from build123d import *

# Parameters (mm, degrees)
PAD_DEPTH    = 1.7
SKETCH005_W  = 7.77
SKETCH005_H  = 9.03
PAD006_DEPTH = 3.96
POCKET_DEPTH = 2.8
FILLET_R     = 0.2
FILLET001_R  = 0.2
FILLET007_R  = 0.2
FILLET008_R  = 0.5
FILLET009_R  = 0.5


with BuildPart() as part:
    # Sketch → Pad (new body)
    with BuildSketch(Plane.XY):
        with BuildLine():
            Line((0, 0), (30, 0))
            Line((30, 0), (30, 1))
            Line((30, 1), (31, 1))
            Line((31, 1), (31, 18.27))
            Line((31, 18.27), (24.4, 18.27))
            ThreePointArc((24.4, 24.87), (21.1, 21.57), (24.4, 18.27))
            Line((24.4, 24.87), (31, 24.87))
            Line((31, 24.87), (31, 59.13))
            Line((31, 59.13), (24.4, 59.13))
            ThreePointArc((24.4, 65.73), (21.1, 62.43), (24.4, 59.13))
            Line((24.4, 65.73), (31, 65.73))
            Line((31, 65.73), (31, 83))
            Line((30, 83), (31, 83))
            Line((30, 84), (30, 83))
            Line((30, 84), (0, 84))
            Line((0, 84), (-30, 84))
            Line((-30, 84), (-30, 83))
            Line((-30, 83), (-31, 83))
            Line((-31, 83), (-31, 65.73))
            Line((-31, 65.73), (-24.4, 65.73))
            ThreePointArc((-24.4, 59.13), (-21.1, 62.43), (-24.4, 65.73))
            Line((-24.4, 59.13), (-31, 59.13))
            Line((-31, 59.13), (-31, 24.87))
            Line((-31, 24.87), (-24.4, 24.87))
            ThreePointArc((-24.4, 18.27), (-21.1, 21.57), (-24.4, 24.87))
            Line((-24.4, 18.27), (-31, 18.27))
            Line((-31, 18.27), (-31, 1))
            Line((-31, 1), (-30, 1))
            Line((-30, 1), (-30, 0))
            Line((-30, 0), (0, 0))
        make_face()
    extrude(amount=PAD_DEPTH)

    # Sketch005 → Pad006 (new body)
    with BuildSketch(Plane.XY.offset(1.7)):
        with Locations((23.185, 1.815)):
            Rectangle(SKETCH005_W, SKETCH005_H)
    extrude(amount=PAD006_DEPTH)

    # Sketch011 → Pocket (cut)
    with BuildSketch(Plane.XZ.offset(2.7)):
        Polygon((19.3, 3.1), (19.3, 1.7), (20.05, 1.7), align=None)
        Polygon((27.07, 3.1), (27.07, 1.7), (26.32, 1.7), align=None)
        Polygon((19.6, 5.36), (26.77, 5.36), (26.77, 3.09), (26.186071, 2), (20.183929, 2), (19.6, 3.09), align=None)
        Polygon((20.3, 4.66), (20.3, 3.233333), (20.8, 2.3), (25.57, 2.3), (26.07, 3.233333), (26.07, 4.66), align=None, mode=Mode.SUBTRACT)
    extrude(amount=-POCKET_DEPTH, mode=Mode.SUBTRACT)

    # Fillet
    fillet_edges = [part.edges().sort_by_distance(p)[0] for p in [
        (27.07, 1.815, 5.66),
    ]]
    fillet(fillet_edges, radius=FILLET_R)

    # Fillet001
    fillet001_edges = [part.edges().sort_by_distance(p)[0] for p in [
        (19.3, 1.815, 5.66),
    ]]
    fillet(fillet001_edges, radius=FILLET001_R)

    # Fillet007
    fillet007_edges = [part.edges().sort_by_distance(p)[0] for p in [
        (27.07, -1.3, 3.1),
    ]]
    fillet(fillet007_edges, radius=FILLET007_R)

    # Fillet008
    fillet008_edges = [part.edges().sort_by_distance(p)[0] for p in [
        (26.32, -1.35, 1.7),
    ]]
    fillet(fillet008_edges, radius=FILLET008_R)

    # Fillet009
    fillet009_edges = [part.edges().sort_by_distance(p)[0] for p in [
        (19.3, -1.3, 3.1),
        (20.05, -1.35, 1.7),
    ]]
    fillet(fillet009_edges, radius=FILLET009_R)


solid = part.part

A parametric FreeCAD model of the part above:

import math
import FreeCAD as App
import Part
import Sketcher


def edges_at(feature, points):
    """Names of the edges that pass closest to the given points."""
    edges = feature.Shape.Edges
    near = lambda p: min(range(len(edges)), key=lambda i: edges[i].distToShape(Part.Vertex(*p))[0])
    return sorted({f"Edge{near(p) + 1}" for p in points})

doc = App.newDocument("Part")
body = doc.addObject("PartDesign::Body", "Body")

# Sketch on XY plane
sketch1 = body.newObject("Sketcher::SketchObject", "Sketch")
sketch1.AttachmentSupport = (doc.getObject("XY_Plane"), [""])
sketch1.MapMode = "FlatFace"
sketch1.addGeometry(Part.LineSegment(App.Vector(30, 0, 0), App.Vector(30, 1, 0)), False)
sketch1.addGeometry(Part.LineSegment(App.Vector(30, 1, 0), App.Vector(31, 1, 0)), False)
sketch1.addGeometry(Part.LineSegment(App.Vector(31, 1, 0), App.Vector(31, 18.3, 0)), False)
sketch1.addGeometry(Part.LineSegment(App.Vector(31, 18.3, 0), App.Vector(24.4, 18.3, 0)), False)
sketch1.addGeometry(Part.ArcOfCircle(Part.Circle(App.Vector(24.4, 21.6, 0), App.Vector(0, 0, 1), 3.3), math.radians(90), math.radians(270)), False)
sketch1.addGeometry(Part.LineSegment(App.Vector(24.4, 24.9, 0), App.Vector(31, 24.9, 0)), False)
sketch1.addGeometry(Part.LineSegment(App.Vector(31, 24.9, 0), App.Vector(31, 59.1, 0)), False)
sketch1.addGeometry(Part.LineSegment(App.Vector(31, 59.1, 0), App.Vector(24.4, 59.1, 0)), False)
sketch1.addGeometry(Part.ArcOfCircle(Part.Circle(App.Vector(24.4, 62.4, 0), App.Vector(0, 0, 1), 3.3), math.radians(90), math.radians(270)), False)
sketch1.addGeometry(Part.LineSegment(App.Vector(24.4, 65.7, 0), App.Vector(31, 65.7, 0)), False)
sketch1.addGeometry(Part.LineSegment(App.Vector(31, 65.7, 0), App.Vector(31, 83, 0)), False)
sketch1.addGeometry(Part.LineSegment(App.Vector(31, 83, 0), App.Vector(30, 83, 0)), False)
sketch1.addGeometry(Part.LineSegment(App.Vector(30, 83, 0), App.Vector(30, 84, 0)), False)
sketch1.addGeometry(Part.LineSegment(App.Vector(30, 84, 0), App.Vector(-30, 84, 0)), False)
sketch1.addGeometry(Part.LineSegment(App.Vector(-30, 84, 0), App.Vector(-30, 83, 0)), False)
sketch1.addGeometry(Part.LineSegment(App.Vector(-30, 83, 0), App.Vector(-31, 83, 0)), False)
sketch1.addGeometry(Part.LineSegment(App.Vector(-31, 83, 0), App.Vector(-31, 65.7, 0)), False)
sketch1.addGeometry(Part.LineSegment(App.Vector(-31, 65.7, 0), App.Vector(-24.4, 65.7, 0)), False)
sketch1.addGeometry(Part.ArcOfCircle(Part.Circle(App.Vector(-24.4, 62.4, 0), App.Vector(0, 0, 1), 3.3), math.radians(-90), math.radians(90)), False)
sketch1.addGeometry(Part.LineSegment(App.Vector(-24.4, 59.1, 0), App.Vector(-31, 59.1, 0)), False)
sketch1.addGeometry(Part.LineSegment(App.Vector(-31, 59.1, 0), App.Vector(-31, 24.9, 0)), False)
sketch1.addGeometry(Part.LineSegment(App.Vector(-31, 24.9, 0), App.Vector(-24.4, 24.9, 0)), False)
sketch1.addGeometry(Part.ArcOfCircle(Part.Circle(App.Vector(-24.4, 21.6, 0), App.Vector(0, 0, 1), 3.3), math.radians(-90), math.radians(90)), False)
sketch1.addGeometry(Part.LineSegment(App.Vector(-24.4, 18.3, 0), App.Vector(-31, 18.3, 0)), False)
sketch1.addGeometry(Part.LineSegment(App.Vector(-31, 18.3, 0), App.Vector(-31, 1, 0)), False)
sketch1.addGeometry(Part.LineSegment(App.Vector(-31, 1, 0), App.Vector(-30, 1, 0)), False)
sketch1.addGeometry(Part.LineSegment(App.Vector(-30, 1, 0), App.Vector(-30, 0, 0)), False)
sketch1.addGeometry(Part.LineSegment(App.Vector(-30, 0, 0), App.Vector(30, 0, 0)), False)
sketch1.addConstraint(Sketcher.Constraint("Coincident", 0, 2, 1, 1))
sketch1.addConstraint(Sketcher.Constraint("Coincident", 1, 2, 2, 1))
sketch1.addConstraint(Sketcher.Constraint("Coincident", 2, 2, 3, 1))
sketch1.addConstraint(Sketcher.Constraint("Tangent", 3, 2, 4, 2))
sketch1.addConstraint(Sketcher.Constraint("Tangent", 4, 1, 5, 1))
sketch1.addConstraint(Sketcher.Constraint("Coincident", 5, 2, 6, 1))
sketch1.addConstraint(Sketcher.Constraint("Coincident", 6, 2, 7, 1))
sketch1.addConstraint(Sketcher.Constraint("Tangent", 7, 2, 8, 2))
sketch1.addConstraint(Sketcher.Constraint("Tangent", 8, 1, 9, 1))
sketch1.addConstraint(Sketcher.Constraint("Coincident", 9, 2, 10, 1))
sketch1.addConstraint(Sketcher.Constraint("Coincident", 10, 2, 11, 1))
sketch1.addConstraint(Sketcher.Constraint("Coincident", 11, 2, 12, 1))
sketch1.addConstraint(Sketcher.Constraint("Coincident", 12, 2, 13, 1))
sketch1.addConstraint(Sketcher.Constraint("Coincident", 13, 2, 14, 1))
sketch1.addConstraint(Sketcher.Constraint("Coincident", 14, 2, 15, 1))
sketch1.addConstraint(Sketcher.Constraint("Coincident", 15, 2, 16, 1))
sketch1.addConstraint(Sketcher.Constraint("Coincident", 16, 2, 17, 1))
sketch1.addConstraint(Sketcher.Constraint("Tangent", 17, 2, 18, 2))
sketch1.addConstraint(Sketcher.Constraint("Tangent", 18, 1, 19, 1))
sketch1.addConstraint(Sketcher.Constraint("Coincident", 19, 2, 20, 1))
sketch1.addConstraint(Sketcher.Constraint("Coincident", 20, 2, 21, 1))
sketch1.addConstraint(Sketcher.Constraint("Tangent", 21, 2, 22, 2))
sketch1.addConstraint(Sketcher.Constraint("Tangent", 22, 1, 23, 1))
sketch1.addConstraint(Sketcher.Constraint("Coincident", 23, 2, 24, 1))
sketch1.addConstraint(Sketcher.Constraint("Coincident", 24, 2, 25, 1))
sketch1.addConstraint(Sketcher.Constraint("Coincident", 25, 2, 26, 1))
sketch1.addConstraint(Sketcher.Constraint("Coincident", 26, 2, 27, 1))
sketch1.addConstraint(Sketcher.Constraint("Coincident", 27, 2, 0, 1))
sketch1.addConstraint(Sketcher.Constraint("Vertical", 0))
sketch1.addConstraint(Sketcher.Constraint("Horizontal", 1))
sketch1.addConstraint(Sketcher.Constraint("Vertical", 2))
sketch1.addConstraint(Sketcher.Constraint("Horizontal", 3))
sketch1.addConstraint(Sketcher.Constraint("Horizontal", 5))
sketch1.addConstraint(Sketcher.Constraint("Vertical", 6))
sketch1.addConstraint(Sketcher.Constraint("Horizontal", 7))
sketch1.addConstraint(Sketcher.Constraint("Horizontal", 9))
sketch1.addConstraint(Sketcher.Constraint("Vertical", 10))
sketch1.addConstraint(Sketcher.Constraint("Horizontal", 11))
sketch1.addConstraint(Sketcher.Constraint("Vertical", 12))
sketch1.addConstraint(Sketcher.Constraint("Horizontal", 13))
sketch1.addConstraint(Sketcher.Constraint("Vertical", 14))
sketch1.addConstraint(Sketcher.Constraint("Horizontal", 15))
sketch1.addConstraint(Sketcher.Constraint("Vertical", 16))
sketch1.addConstraint(Sketcher.Constraint("Horizontal", 17))
sketch1.addConstraint(Sketcher.Constraint("Horizontal", 19))
sketch1.addConstraint(Sketcher.Constraint("Vertical", 20))
sketch1.addConstraint(Sketcher.Constraint("Horizontal", 21))
sketch1.addConstraint(Sketcher.Constraint("Horizontal", 23))
sketch1.addConstraint(Sketcher.Constraint("Vertical", 24))
sketch1.addConstraint(Sketcher.Constraint("Horizontal", 25))
sketch1.addConstraint(Sketcher.Constraint("Vertical", 26))
sketch1.addConstraint(Sketcher.Constraint("Horizontal", 27))
sketch1.addConstraint(Sketcher.Constraint("Equal", 4, 8))
sketch1.addConstraint(Sketcher.Constraint("Equal", 8, 18))
sketch1.addConstraint(Sketcher.Constraint("Equal", 18, 22))
sketch1.addConstraint(Sketcher.Constraint("Symmetric", 26, 2, 27, 2, -1, 1))
sketch1.addConstraint(Sketcher.Constraint("Symmetric", 8, 3, 18, 3, -2))
sketch1.addConstraint(Sketcher.Constraint("Symmetric", 4, 3, 22, 3, -2))
sketch1.addConstraint(Sketcher.Constraint("Symmetric", 11, 2, 14, 2, -2))
sketch1.addConstraint(Sketcher.Constraint("Symmetric", 1, 2, 24, 2, -2))
sketch1.addConstraint(Sketcher.Constraint("Vertical", 4, 3, 8, 3))
sketch1.addConstraint(Sketcher.Constraint("Vertical", 2, 2, 5, 2))
sketch1.addConstraint(Sketcher.Constraint("Vertical", 6, 2, 9, 2))
sketch1.addConstraint(Sketcher.Constraint("Vertical", 0, 2, 11, 2))
sketch1.addConstraint(Sketcher.Constraint("Vertical", 16, 2, 19, 2))
sketch1.addConstraint(Sketcher.Constraint("Vertical", 20, 2, 23, 2))
sketch1.addConstraint(Sketcher.Constraint("Equal", 25, 0))
sketch1.addConstraint(Sketcher.Constraint("Equal", 2, 10))
sketch1.addConstraint(Sketcher.Constraint("Equal", 0, 12))
sketch1.addConstraint(Sketcher.Constraint("Radius", 4, 3.3))
sketch1.addConstraint(Sketcher.Constraint("DistanceX", 1, 1, 1, 2, 1.0))
sketch1.addConstraint(Sketcher.Constraint("DistanceX", 13, 2, 13, 1, 60.0))
sketch1.addConstraint(Sketcher.Constraint("DistanceX", 3, 2, 3, 1, 6.6))
sketch1.addConstraint(Sketcher.Constraint("DistanceY", -1, 1, 10, 2, 83.0))
sketch1.addConstraint(Sketcher.Constraint("DistanceY", 2, 1, 2, 2, 17.27))
pad1 = body.newObject("PartDesign::Pad", "Pad")
pad1.Profile = sketch1
pad1.Length = 1.7

# Sketch on XY plane
sketch2 = body.newObject("Sketcher::SketchObject", "Sketch001")
sketch2.AttachmentSupport = (doc.getObject("XY_Plane"), [""])
sketch2.MapMode = "FlatFace"
sketch2.AttachmentOffset = App.Placement(App.Vector(0, 0, 1.7), App.Rotation())
sketch2.addGeometry(Part.LineSegment(App.Vector(19, 6, 0), App.Vector(19, -3, 0)), False)
sketch2.addGeometry(Part.LineSegment(App.Vector(19, -3, 0), App.Vector(27, -3, 0)), False)
sketch2.addGeometry(Part.LineSegment(App.Vector(27, -3, 0), App.Vector(27, 6, 0)), False)
sketch2.addGeometry(Part.LineSegment(App.Vector(27, 6, 0), App.Vector(19, 6, 0)), False)
sketch2.addConstraint(Sketcher.Constraint("Coincident", 0, 2, 1, 1))
sketch2.addConstraint(Sketcher.Constraint("Coincident", 1, 2, 2, 1))
sketch2.addConstraint(Sketcher.Constraint("Coincident", 2, 2, 3, 1))
sketch2.addConstraint(Sketcher.Constraint("Coincident", 3, 2, 0, 1))
sketch2.addConstraint(Sketcher.Constraint("Vertical", 0))
sketch2.addConstraint(Sketcher.Constraint("Horizontal", 1))
sketch2.addConstraint(Sketcher.Constraint("Vertical", 2))
sketch2.addConstraint(Sketcher.Constraint("Horizontal", 3))
sketch2.addConstraint(Sketcher.Constraint("DistanceX", 1, 1, 1, 2, 7.77))
sketch2.addConstraint(Sketcher.Constraint("DistanceY", 0, 2, 0, 1, 9.03))
sketch2.addConstraint(Sketcher.Constraint("DistanceX", -1, 1, 0, 2, 19.3))
sketch2.addConstraint(Sketcher.Constraint("DistanceY", 0, 2, -1, 1, 2.7))
pad2 = body.newObject("PartDesign::Pad", "Pad001")
pad2.Profile = sketch2
pad2.Length = 3.96

# Sketch on XZ plane
sketch3 = body.newObject("Sketcher::SketchObject", "Sketch002")
sketch3.AttachmentSupport = (doc.getObject("XZ_Plane"), [""])
sketch3.MapMode = "FlatFace"
sketch3.AttachmentOffset = App.Placement(App.Vector(0, 0, 2.7), App.Rotation())
sketch3.addGeometry(Part.LineSegment(App.Vector(19.3, 3.1, 0), App.Vector(19.3, 1.7, 0)), False)
sketch3.addGeometry(Part.LineSegment(App.Vector(19.3, 1.7, 0), App.Vector(20.1, 1.7, 0)), False)
sketch3.addGeometry(Part.LineSegment(App.Vector(20.1, 1.7, 0), App.Vector(19.3, 3.1, 0)), False)
sketch3.addGeometry(Part.LineSegment(App.Vector(27.1, 1.7, 0), App.Vector(27.1, 3.1, 0)), False)
sketch3.addGeometry(Part.LineSegment(App.Vector(27.1, 3.1, 0), App.Vector(26.3, 1.7, 0)), False)
sketch3.addGeometry(Part.LineSegment(App.Vector(26.3, 1.7, 0), App.Vector(27.1, 1.7, 0)), False)
sketch3.addGeometry(Part.LineSegment(App.Vector(26.8, 5.4, 0), App.Vector(19.6, 5.4, 0)), False)
sketch3.addGeometry(Part.LineSegment(App.Vector(19.6, 5.4, 0), App.Vector(19.6, 3.1, 0)), False)
sketch3.addGeometry(Part.LineSegment(App.Vector(19.6, 3.1, 0), App.Vector(20.2, 2, 0)), False)
sketch3.addGeometry(Part.LineSegment(App.Vector(20.2, 2, 0), App.Vector(26.2, 2, 0)), False)
sketch3.addGeometry(Part.LineSegment(App.Vector(26.2, 2, 0), App.Vector(26.8, 3.1, 0)), False)
sketch3.addGeometry(Part.LineSegment(App.Vector(26.8, 3.1, 0), App.Vector(26.8, 5.4, 0)), False)
sketch3.addGeometry(Part.LineSegment(App.Vector(20.3, 4.7, 0), App.Vector(26.1, 4.7, 0)), False)
sketch3.addGeometry(Part.LineSegment(App.Vector(26.1, 4.7, 0), App.Vector(26.1, 3.2, 0)), False)
sketch3.addGeometry(Part.LineSegment(App.Vector(26.1, 3.2, 0), App.Vector(25.6, 2.3, 0)), False)
sketch3.addGeometry(Part.LineSegment(App.Vector(25.6, 2.3, 0), App.Vector(20.8, 2.3, 0)), False)
sketch3.addGeometry(Part.LineSegment(App.Vector(20.8, 2.3, 0), App.Vector(20.3, 3.2, 0)), False)
sketch3.addGeometry(Part.LineSegment(App.Vector(20.3, 3.2, 0), App.Vector(20.3, 4.7, 0)), False)
sketch3.addConstraint(Sketcher.Constraint("Coincident", 0, 2, 1, 1))
sketch3.addConstraint(Sketcher.Constraint("Coincident", 1, 2, 2, 1))
sketch3.addConstraint(Sketcher.Constraint("Coincident", 2, 2, 0, 1))
sketch3.addConstraint(Sketcher.Constraint("Coincident", 3, 2, 4, 1))
sketch3.addConstraint(Sketcher.Constraint("Coincident", 4, 2, 5, 1))
sketch3.addConstraint(Sketcher.Constraint("Coincident", 5, 2, 3, 1))
sketch3.addConstraint(Sketcher.Constraint("Coincident", 6, 2, 7, 1))
sketch3.addConstraint(Sketcher.Constraint("Coincident", 7, 2, 8, 1))
sketch3.addConstraint(Sketcher.Constraint("Coincident", 8, 2, 9, 1))
sketch3.addConstraint(Sketcher.Constraint("Coincident", 9, 2, 10, 1))
sketch3.addConstraint(Sketcher.Constraint("Coincident", 10, 2, 11, 1))
sketch3.addConstraint(Sketcher.Constraint("Coincident", 11, 2, 6, 1))
sketch3.addConstraint(Sketcher.Constraint("Coincident", 12, 2, 13, 1))
sketch3.addConstraint(Sketcher.Constraint("Coincident", 13, 2, 14, 1))
sketch3.addConstraint(Sketcher.Constraint("Coincident", 14, 2, 15, 1))
sketch3.addConstraint(Sketcher.Constraint("Coincident", 15, 2, 16, 1))
sketch3.addConstraint(Sketcher.Constraint("Coincident", 16, 2, 17, 1))
sketch3.addConstraint(Sketcher.Constraint("Coincident", 17, 2, 12, 1))
sketch3.addConstraint(Sketcher.Constraint("Vertical", 0))
sketch3.addConstraint(Sketcher.Constraint("Horizontal", 1))
sketch3.addConstraint(Sketcher.Constraint("Vertical", 3))
sketch3.addConstraint(Sketcher.Constraint("Horizontal", 5))
sketch3.addConstraint(Sketcher.Constraint("Horizontal", 6))
sketch3.addConstraint(Sketcher.Constraint("Vertical", 7))
sketch3.addConstraint(Sketcher.Constraint("Horizontal", 9))
sketch3.addConstraint(Sketcher.Constraint("Vertical", 11))
sketch3.addConstraint(Sketcher.Constraint("Horizontal", 12))
sketch3.addConstraint(Sketcher.Constraint("Vertical", 13))
sketch3.addConstraint(Sketcher.Constraint("Horizontal", 15))
sketch3.addConstraint(Sketcher.Constraint("Vertical", 17))
sketch3.addConstraint(Sketcher.Constraint("Parallel", 2, 8))
sketch3.addConstraint(Sketcher.Constraint("Parallel", 4, 10))
sketch3.addConstraint(Sketcher.Constraint("Parallel", 10, 14))
sketch3.addConstraint(Sketcher.Constraint("Parallel", 8, 16))
sketch3.addConstraint(Sketcher.Constraint("Horizontal", 2, 2, 3, 2))
sketch3.addConstraint(Sketcher.Constraint("Horizontal", 1, 2, 4, 2))
sketch3.addConstraint(Sketcher.Constraint("Horizontal", 7, 2, 10, 2))
sketch3.addConstraint(Sketcher.Constraint("Horizontal", 13, 2, 16, 2))
sketch3.addConstraint(Sketcher.Constraint("Equal", 1, 5))
sketch3.addConstraint(Sketcher.Constraint("DistanceY", 0, 2, 0, 1, 1.4))
sketch3.addConstraint(Sketcher.Constraint("DistanceY", -1, 1, 8, 2, 2.0))
sketch3.addConstraint(Sketcher.Constraint("DistanceX", 12, 2, 3, 2, 1.0))
sketch3.addConstraint(Sketcher.Constraint("DistanceX", 2, 2, 16, 2, 1.0))
sketch3.addConstraint(Sketcher.Constraint("DistanceX", 1, 1, 1, 2, 0.75))
sketch3.addConstraint(Sketcher.Constraint("DistanceX", 6, 2, 6, 1, 7.17))
sketch3.addConstraint(Sketcher.Constraint("DistanceX", 12, 1, 12, 2, 5.77))
sketch3.addConstraint(Sketcher.Constraint("DistanceX", 15, 2, 15, 1, 4.77))
sketch3.addConstraint(Sketcher.Constraint("DistanceY", 7, 2, 7, 1, 2.27))
sketch3.addConstraint(Sketcher.Constraint("DistanceX", -1, 1, 0, 2, 19.3))
sketch3.addConstraint(Sketcher.Constraint("DistanceY", -1, 1, 0, 2, 1.7))
sketch3.addConstraint(Sketcher.Constraint("DistanceX", -1, 1, 6, 2, 19.6))
sketch3.addConstraint(Sketcher.Constraint("DistanceY", -1, 1, 14, 2, 2.3))
sketch3.addConstraint(Sketcher.Constraint("DistanceY", 12, 2, 11, 2, 0.7))
sketch3.addConstraint(Sketcher.Constraint("DistanceY", -1, 1, 6, 2, 5.36))
pocket1 = body.newObject("PartDesign::Pocket", "Pocket")
pocket1.Profile = sketch3
pocket1.Length = 2.8
doc.recompute()

fillet = body.newObject("PartDesign::Fillet", "Fillet")
fillet.Base = (pocket1, edges_at(pocket1, [(27.07, 1.815, 5.66)]))
fillet.Radius = 0.2
doc.recompute()

fillet2 = body.newObject("PartDesign::Fillet", "Fillet001")
fillet2.Base = (fillet, edges_at(fillet, [(19.3, 1.815, 5.66)]))
fillet2.Radius = 0.2
doc.recompute()

fillet3 = body.newObject("PartDesign::Fillet", "Fillet002")
fillet3.Base = (fillet2, edges_at(fillet2, [(27.07, -1.3, 3.1)]))
fillet3.Radius = 0.2
doc.recompute()

fillet4 = body.newObject("PartDesign::Fillet", "Fillet003")
fillet4.Base = (fillet3, edges_at(fillet3, [(26.32, -1.35, 1.7)]))
fillet4.Radius = 0.5
doc.recompute()

fillet5 = body.newObject("PartDesign::Fillet", "Fillet004")
fillet5.Base = (fillet4, edges_at(fillet4, [(19.3, -1.3, 3.1), (20.05, -1.35, 1.7)]))
fillet5.Radius = 0.5

doc.recompute()
